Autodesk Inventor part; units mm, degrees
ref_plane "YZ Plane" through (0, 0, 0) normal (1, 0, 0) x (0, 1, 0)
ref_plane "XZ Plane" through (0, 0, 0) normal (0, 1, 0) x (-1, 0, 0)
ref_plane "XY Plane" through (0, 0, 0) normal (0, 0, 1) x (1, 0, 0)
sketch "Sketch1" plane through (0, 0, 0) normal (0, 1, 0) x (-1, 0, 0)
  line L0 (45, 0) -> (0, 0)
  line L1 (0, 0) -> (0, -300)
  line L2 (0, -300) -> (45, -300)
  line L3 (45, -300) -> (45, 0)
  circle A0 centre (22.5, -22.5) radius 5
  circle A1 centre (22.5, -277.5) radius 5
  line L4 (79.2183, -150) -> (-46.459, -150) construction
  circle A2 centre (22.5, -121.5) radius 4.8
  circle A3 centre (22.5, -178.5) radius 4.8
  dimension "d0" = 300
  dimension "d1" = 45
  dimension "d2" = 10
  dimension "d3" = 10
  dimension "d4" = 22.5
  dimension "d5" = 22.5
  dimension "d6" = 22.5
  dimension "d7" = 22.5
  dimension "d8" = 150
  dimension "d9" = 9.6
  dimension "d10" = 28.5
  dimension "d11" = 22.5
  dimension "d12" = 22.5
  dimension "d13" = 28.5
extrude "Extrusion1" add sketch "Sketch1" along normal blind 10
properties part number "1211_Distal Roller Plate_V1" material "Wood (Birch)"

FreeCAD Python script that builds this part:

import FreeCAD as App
import Part
import Sketcher

V = App.Vector
Q = App.Units.Quantity


def add_polygon(sketch, points):
    """Adds a closed chain of lines whose ends are joined by coincident constraints."""
    first, n = sketch.GeometryCount, len(points)
    for a, b in zip(points, points[1:] + points[:1]):
        sketch.addGeometry(Part.LineSegment(App.Vector(*a, 0), App.Vector(*b, 0)), False)
    for i in range(n):
        sketch.addConstraint(Sketcher.Constraint("Coincident", first + i, 2, first + (i + 1) % n, 1))

doc = App.newDocument("Part")
body = doc.addObject("PartDesign::Body", "Body")

sketch1 = doc.addObject("Sketcher::SketchObject", "Sketch")
body.addObject(sketch1)
sketch1.AttachmentSupport = (doc.XZ_Plane, [""])
sketch1.MapMode = "FlatFace"
add_polygon(sketch1, [(-45, -300), (-45, 0), (0, 0), (0, -300)])
sketch1.addGeometry(Part.Circle(V(-22.5, -277.5, 0), V(0, 0, 1), 5), False)
sketch1.addGeometry(Part.Circle(V(-22.5, -178.5, 0), V(0, 0, 1), 4.8), False)
sketch1.addGeometry(Part.Circle(V(-22.5, -121.5, 0), V(0, 0, 1), 4.8), False)
sketch1.addGeometry(Part.Circle(V(-22.5, -22.5, 0), V(0, 0, 1), 5), False)
sketch1.addConstraint([
    Sketcher.Constraint("Vertical", 0),
    Sketcher.Constraint("Horizontal", 1),
    Sketcher.Constraint("Vertical", 2),
    Sketcher.Constraint("Horizontal", 3),
    Sketcher.Constraint("Coincident", 1, 2, -1, 1),
    Sketcher.Constraint("Equal", 5, 6),
    Sketcher.Constraint("Equal", 4, 7),
    Sketcher.Constraint("Vertical", 4, 3, 5, 3),
    Sketcher.Constraint("Vertical", 5, 3, 6, 3),
    Sketcher.Constraint("Vertical", 6, 3, 7, 3),
    Sketcher.Constraint("Diameter", 4, Q("10 mm")),
    Sketcher.Constraint("Diameter", 5, Q("9.6 mm")),
    Sketcher.Constraint("DistanceX", 1, 1, 1, 2, Q("45 mm")),
    Sketcher.Constraint("DistanceY", 0, 1, 0, 2, Q("300 mm")),
    Sketcher.Constraint("DistanceX", 4, 3, -1, 1, Q("22.5 mm")),
    Sketcher.Constraint("DistanceY", 7, 3, -1, 1, Q("22.5 mm")),
    Sketcher.Constraint("DistanceY", 2, 2, 4, 3, Q("22.5 mm")),
    Sketcher.Constraint("DistanceY", 4, 3, 5, 3, Q("99 mm")),
    Sketcher.Constraint("DistanceY", 5, 3, 6, 3, Q("57 mm")),
])
pad1 = doc.addObject("PartDesign::Pad", "Pad")
body.addObject(pad1)
pad1.Profile = sketch1
pad1.Length = 10
pad1.Reversed = True

doc.recompute()
